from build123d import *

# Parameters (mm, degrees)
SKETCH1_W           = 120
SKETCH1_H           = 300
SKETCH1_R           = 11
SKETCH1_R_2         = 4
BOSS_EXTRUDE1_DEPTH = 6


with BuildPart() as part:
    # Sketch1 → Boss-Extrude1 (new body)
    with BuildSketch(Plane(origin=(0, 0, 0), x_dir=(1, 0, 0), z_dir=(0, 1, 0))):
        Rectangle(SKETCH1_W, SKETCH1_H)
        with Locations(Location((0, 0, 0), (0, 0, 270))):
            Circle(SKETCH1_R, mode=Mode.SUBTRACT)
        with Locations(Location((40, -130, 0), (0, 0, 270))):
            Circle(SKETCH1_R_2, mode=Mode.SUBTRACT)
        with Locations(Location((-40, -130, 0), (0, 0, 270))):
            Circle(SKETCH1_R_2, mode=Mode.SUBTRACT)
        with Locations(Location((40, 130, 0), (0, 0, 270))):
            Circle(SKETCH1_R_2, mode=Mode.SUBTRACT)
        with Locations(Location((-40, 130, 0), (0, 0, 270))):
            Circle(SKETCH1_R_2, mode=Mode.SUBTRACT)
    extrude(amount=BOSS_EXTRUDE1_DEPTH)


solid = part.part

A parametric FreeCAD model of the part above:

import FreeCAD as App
import Part
import Sketcher
Q = App.Units.Quantity


def add_polygon(sketch, points):
    """Adds a closed chain of lines whose ends are joined by coincident constraints."""
    first, n = sketch.GeometryCount, len(points)
    for a, b in zip(points, points[1:] + points[:1]):
        sketch.addGeometry(Part.LineSegment(App.Vector(*a, 0), App.Vector(*b, 0)), False)
    for i in range(n):
        sketch.addConstraint(Sketcher.Constraint("Coincident", first + i, 2, first + (i + 1) % n, 1))

doc = App.newDocument("Part")
body = doc.addObject("PartDesign::Body", "Body")

sketch1 = body.newObject("Sketcher::SketchObject", "Sketch")
sketch1.AttachmentSupport = (doc.getObject("XZ_Plane"), [""])
sketch1.MapMode = "FlatFace"
add_polygon(sketch1, [(-60, -150), (-60, 150), (60, 150), (60, -150)])
sketch1.addGeometry(Part.Circle(App.Vector(-40, 130, 0), App.Vector(0, 0, 1), 4), False)
sketch1.addGeometry(Part.Circle(App.Vector(40, 130, 0), App.Vector(0, 0, 1), 4), False)
sketch1.addGeometry(Part.Circle(App.Vector(-40, -130, 0), App.Vector(0, 0, 1), 4), False)
sketch1.addGeometry(Part.Circle(App.Vector(0, 0, 0), App.Vector(0, 0, 1), 11), False)
sketch1.addGeometry(Part.Circle(App.Vector(40, -130, 0), App.Vector(0, 0, 1), 4), False)
sketch1.addConstraint([
    Sketcher.Constraint("Vertical", 0),
    Sketcher.Constraint("Horizontal", 1),
    Sketcher.Constraint("Vertical", 2),
    Sketcher.Constraint("Horizontal", 3),
    Sketcher.Constraint("Coincident", 7, 3, -1, 1),
    Sketcher.Constraint("Equal", 4, 5),
    Sketcher.Constraint("Equal", 5, 6),
    Sketcher.Constraint("Equal", 6, 8),
    Sketcher.Constraint("Symmetric", 5, 3, 6, 3, -1, 1),
    Sketcher.Constraint("Symmetric", 4, 3, 8, 3, -1, 1),
    Sketcher.Constraint("Symmetric", 0, 2, 2, 2, -1, 1),
    Sketcher.Constraint("Symmetric", 4, 3, 5, 3, -2),
    Sketcher.Constraint("Diameter", 4, Q("8 mm")),
    Sketcher.Constraint("Diameter", 7, Q("22 mm")),
    Sketcher.Constraint("DistanceX", 1, 1, 1, 2, Q("120 mm")),
    Sketcher.Constraint("DistanceY", 0, 1, 0, 2, Q("300 mm")),
    Sketcher.Constraint("DistanceX", 4, 3, -1, 1, Q("40 mm")),
    Sketcher.Constraint("DistanceY", -1, 1, 4, 3, Q("130 mm")),
])
pad1 = body.newObject("PartDesign::Pad", "Pad")
pad1.Profile = sketch1
pad1.Length = 6
pad1.Reversed = True

doc.recompute()
